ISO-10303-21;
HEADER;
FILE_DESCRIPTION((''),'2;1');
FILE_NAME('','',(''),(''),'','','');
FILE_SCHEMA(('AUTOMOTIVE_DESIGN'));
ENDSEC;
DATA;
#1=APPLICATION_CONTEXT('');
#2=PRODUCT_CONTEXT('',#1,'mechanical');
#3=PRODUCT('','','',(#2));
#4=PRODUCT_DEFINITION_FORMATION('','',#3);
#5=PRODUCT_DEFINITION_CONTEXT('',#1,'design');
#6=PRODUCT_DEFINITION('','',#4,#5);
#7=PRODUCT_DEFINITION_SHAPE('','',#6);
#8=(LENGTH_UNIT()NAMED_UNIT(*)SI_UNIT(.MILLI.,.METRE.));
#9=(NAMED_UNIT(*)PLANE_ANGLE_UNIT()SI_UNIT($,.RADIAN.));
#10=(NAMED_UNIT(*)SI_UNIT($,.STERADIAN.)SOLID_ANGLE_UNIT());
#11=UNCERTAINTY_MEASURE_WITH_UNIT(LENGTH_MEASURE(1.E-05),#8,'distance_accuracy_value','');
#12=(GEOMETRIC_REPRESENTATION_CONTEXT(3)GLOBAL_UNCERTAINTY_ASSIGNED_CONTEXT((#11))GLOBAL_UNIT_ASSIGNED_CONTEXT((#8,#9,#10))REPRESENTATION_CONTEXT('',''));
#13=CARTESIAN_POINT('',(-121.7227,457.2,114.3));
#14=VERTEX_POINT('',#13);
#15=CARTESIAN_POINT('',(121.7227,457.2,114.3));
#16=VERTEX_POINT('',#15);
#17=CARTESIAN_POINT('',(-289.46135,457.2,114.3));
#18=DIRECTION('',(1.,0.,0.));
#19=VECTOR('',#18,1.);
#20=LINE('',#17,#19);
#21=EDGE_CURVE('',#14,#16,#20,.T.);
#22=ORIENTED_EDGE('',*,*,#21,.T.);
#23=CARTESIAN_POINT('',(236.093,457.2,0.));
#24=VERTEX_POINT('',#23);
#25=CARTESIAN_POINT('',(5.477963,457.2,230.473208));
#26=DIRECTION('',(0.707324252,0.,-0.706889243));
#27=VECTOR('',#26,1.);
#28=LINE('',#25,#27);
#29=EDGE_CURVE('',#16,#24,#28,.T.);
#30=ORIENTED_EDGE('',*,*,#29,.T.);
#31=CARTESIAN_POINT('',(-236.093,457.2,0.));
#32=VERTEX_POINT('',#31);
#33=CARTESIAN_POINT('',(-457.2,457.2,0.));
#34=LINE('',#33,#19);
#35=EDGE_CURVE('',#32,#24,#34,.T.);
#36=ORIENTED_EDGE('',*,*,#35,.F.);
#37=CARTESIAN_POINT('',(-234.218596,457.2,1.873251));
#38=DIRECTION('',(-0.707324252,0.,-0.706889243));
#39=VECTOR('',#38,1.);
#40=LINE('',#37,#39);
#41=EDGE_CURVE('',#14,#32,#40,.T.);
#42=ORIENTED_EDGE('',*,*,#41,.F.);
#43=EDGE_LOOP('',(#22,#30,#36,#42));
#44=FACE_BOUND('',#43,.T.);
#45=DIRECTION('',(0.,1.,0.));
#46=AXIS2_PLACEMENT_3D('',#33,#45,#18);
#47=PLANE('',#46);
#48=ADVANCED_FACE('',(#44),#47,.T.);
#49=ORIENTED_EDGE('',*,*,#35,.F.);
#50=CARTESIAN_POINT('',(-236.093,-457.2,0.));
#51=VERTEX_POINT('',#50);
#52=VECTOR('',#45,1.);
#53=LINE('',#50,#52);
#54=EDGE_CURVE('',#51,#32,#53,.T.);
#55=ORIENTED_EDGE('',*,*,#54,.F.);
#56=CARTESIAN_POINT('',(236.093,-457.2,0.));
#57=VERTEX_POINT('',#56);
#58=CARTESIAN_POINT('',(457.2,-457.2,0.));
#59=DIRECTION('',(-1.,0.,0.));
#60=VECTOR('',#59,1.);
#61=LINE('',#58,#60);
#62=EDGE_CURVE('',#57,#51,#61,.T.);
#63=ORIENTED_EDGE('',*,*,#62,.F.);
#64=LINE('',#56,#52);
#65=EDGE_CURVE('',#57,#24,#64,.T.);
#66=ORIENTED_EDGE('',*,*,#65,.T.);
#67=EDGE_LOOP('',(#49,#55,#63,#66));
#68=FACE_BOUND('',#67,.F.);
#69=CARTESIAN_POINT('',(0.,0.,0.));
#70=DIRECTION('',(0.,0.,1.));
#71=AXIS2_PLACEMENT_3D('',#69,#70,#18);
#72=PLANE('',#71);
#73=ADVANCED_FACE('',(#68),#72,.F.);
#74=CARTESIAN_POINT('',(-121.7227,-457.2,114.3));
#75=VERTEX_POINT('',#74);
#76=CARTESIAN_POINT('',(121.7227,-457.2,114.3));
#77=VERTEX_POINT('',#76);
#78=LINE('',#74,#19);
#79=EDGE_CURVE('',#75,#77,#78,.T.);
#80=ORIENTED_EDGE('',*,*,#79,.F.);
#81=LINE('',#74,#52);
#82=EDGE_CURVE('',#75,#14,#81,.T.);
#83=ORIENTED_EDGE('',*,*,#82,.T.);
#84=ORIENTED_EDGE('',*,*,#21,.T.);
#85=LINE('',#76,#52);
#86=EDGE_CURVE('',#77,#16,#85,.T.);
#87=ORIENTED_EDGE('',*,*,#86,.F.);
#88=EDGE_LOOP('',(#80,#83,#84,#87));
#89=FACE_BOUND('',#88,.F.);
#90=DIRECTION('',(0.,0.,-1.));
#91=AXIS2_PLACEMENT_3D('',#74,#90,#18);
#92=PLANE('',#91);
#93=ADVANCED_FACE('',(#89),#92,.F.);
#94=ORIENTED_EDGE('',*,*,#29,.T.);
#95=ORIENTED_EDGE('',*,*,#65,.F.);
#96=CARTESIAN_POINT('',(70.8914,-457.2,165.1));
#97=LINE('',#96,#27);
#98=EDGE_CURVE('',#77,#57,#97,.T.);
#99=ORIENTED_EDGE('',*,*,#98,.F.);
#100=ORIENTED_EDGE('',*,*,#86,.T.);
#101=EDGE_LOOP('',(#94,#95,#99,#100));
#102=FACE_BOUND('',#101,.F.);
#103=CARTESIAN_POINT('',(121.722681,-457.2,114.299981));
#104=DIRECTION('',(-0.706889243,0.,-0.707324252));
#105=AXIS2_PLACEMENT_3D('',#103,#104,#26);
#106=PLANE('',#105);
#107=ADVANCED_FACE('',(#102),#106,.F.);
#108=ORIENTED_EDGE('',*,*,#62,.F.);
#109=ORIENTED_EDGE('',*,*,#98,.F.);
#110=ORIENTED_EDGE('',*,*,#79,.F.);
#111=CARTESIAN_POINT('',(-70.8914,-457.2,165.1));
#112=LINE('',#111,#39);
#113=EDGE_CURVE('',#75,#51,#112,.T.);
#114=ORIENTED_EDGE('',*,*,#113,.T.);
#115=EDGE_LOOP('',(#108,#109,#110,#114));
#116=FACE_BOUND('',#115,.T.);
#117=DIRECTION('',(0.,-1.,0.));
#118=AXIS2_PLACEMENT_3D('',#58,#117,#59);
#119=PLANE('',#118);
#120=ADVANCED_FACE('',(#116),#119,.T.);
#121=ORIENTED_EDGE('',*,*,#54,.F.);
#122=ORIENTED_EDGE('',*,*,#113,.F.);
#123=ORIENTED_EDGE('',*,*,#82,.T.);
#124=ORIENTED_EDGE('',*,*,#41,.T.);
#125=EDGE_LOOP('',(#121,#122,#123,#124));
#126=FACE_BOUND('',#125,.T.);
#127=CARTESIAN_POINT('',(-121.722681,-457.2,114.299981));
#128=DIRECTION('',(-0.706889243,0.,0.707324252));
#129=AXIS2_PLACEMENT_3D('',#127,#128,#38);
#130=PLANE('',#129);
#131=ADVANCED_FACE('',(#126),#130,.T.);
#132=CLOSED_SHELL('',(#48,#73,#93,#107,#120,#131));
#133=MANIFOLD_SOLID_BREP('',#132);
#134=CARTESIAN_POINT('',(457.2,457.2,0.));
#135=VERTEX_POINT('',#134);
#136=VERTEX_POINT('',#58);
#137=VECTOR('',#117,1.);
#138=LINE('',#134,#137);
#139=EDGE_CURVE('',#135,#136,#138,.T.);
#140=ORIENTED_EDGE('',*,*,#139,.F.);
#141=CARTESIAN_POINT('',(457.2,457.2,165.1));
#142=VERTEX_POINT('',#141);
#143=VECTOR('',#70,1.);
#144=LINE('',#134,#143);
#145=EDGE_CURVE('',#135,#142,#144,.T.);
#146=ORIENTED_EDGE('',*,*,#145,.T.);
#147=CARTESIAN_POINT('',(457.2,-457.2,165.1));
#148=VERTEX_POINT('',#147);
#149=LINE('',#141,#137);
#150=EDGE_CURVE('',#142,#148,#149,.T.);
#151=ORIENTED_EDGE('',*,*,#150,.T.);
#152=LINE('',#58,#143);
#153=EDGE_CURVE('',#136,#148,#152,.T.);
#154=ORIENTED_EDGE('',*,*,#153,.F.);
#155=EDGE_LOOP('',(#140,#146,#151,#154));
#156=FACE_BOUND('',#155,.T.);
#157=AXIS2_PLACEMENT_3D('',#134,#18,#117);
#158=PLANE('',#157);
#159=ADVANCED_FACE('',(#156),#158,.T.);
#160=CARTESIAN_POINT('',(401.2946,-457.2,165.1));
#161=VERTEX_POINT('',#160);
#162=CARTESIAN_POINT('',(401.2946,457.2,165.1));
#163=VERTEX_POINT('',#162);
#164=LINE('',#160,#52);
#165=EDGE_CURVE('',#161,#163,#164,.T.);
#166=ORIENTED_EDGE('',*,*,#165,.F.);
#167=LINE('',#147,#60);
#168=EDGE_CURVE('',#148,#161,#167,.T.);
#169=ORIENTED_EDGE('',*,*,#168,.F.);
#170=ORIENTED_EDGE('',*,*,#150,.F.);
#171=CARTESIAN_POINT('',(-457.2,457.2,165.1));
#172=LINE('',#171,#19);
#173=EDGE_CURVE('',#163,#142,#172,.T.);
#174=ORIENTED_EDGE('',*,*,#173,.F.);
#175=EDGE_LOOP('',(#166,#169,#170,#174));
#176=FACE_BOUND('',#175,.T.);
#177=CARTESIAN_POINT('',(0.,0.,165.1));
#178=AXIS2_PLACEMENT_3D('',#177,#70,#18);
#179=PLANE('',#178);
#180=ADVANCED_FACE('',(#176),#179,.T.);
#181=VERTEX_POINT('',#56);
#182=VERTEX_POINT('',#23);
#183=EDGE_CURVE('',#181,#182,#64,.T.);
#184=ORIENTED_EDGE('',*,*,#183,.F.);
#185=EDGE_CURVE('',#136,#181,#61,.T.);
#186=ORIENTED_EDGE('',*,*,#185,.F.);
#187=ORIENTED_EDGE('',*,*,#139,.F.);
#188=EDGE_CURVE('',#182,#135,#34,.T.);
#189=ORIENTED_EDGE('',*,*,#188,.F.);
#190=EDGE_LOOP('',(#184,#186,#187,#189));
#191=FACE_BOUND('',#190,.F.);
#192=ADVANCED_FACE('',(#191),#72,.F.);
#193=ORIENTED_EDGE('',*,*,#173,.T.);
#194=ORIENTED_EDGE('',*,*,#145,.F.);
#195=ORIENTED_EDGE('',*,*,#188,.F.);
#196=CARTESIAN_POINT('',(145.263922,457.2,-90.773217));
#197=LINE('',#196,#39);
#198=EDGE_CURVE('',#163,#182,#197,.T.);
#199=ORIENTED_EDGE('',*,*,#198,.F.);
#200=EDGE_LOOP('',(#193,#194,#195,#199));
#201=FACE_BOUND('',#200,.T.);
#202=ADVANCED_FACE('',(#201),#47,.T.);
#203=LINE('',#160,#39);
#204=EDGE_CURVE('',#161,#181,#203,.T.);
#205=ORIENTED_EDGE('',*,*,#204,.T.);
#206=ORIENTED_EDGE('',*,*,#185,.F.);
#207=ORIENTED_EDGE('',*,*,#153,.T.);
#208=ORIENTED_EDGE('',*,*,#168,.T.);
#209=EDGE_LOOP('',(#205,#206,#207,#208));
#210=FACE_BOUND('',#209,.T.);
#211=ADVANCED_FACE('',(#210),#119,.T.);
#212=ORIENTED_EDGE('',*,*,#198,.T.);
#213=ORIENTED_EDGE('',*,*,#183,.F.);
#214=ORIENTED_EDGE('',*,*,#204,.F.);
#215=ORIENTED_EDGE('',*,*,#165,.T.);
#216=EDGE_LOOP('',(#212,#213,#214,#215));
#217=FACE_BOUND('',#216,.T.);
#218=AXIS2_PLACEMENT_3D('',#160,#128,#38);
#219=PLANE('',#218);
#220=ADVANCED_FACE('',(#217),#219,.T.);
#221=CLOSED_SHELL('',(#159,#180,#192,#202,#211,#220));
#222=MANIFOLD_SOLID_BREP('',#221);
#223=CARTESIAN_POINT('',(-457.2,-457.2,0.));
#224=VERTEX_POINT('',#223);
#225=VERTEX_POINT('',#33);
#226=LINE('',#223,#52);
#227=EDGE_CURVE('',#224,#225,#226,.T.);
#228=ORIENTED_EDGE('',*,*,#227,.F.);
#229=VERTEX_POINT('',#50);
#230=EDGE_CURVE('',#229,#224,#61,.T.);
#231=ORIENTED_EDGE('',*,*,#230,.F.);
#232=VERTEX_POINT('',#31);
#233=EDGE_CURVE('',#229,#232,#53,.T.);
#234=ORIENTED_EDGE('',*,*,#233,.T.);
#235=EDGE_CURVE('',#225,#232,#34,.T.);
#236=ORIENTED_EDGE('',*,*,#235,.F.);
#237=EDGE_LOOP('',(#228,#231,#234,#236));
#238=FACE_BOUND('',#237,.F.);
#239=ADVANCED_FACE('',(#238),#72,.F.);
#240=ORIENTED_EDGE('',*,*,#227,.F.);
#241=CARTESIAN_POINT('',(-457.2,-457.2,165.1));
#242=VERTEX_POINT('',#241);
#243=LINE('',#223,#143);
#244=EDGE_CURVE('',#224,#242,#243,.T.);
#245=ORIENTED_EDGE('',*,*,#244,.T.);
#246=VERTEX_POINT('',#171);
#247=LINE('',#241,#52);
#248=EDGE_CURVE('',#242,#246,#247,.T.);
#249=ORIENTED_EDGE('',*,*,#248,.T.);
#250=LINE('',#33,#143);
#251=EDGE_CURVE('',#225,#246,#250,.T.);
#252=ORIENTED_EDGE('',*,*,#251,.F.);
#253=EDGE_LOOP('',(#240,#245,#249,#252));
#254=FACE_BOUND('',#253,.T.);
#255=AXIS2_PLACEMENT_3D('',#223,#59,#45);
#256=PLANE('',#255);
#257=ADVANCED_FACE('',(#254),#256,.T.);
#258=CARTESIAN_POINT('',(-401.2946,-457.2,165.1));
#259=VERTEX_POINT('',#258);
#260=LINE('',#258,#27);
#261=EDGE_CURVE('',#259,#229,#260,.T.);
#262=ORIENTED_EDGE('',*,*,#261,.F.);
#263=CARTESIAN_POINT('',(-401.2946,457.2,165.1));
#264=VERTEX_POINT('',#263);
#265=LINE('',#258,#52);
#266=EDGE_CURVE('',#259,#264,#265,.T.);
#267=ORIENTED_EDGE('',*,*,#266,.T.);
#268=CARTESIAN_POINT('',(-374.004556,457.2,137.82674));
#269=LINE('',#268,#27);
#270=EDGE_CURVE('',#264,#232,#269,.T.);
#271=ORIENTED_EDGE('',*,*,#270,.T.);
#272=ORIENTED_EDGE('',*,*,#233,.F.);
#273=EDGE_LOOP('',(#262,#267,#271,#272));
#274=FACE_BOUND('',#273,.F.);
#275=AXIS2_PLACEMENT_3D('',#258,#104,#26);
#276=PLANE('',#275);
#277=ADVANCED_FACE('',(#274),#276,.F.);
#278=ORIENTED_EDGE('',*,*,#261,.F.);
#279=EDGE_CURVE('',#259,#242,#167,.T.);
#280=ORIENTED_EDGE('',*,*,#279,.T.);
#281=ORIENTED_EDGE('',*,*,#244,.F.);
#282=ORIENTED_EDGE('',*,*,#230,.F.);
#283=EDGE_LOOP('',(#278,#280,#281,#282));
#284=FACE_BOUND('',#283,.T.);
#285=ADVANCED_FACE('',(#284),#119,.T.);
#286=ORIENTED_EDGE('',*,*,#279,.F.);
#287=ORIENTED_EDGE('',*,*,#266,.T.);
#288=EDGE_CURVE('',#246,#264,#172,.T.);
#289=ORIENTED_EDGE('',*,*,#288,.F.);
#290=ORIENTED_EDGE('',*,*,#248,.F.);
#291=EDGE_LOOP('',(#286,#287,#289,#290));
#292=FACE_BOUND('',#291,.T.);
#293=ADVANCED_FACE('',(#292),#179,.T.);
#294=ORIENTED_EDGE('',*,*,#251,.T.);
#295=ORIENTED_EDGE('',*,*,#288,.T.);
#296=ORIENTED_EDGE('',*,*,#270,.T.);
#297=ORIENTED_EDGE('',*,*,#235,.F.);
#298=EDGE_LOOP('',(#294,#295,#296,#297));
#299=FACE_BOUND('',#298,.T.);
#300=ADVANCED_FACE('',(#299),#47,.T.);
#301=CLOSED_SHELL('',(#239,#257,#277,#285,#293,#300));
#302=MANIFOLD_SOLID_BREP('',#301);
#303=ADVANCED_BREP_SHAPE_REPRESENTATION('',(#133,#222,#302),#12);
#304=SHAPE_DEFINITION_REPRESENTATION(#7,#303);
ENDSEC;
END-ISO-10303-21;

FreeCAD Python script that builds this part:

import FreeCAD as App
import Part
import Sketcher
Q = App.Units.Quantity

doc = App.newDocument("Part")
params = doc.addObject("Spreadsheet::Sheet", "Params")
for row, (alias, value) in enumerate([
    ("sketch1_width", "36 in"),
    ("pad1_length", "6.5 in"),
    ("sketch2_width", "31.598 in"),
], start=1):
    params.set(f"A{row}", alias)
    params.set(f"B{row}", "=" + value)
    params.setAlias(f"B{row}", alias)

body = doc.addObject("PartDesign::Body", "Body")
body.AllowCompound = True

# Sketch on XY plane
sketch1 = body.newObject("Sketcher::SketchObject", "Sketch")
sketch1.AttachmentSupport = (doc.getObject("XY_Plane"), [""])
sketch1.MapMode = "FlatFace"
sketch1.addGeometry([
    Part.LineSegment(App.Vector(457, 457, 0), App.Vector(-457, 457, 0)),
    Part.LineSegment(App.Vector(-457, 457, 0), App.Vector(-457, -457, 0)),
    Part.LineSegment(App.Vector(-457, -457, 0), App.Vector(457, -457, 0)),
    Part.LineSegment(App.Vector(457, -457, 0), App.Vector(457, 457, 0)),
], False)
sketch1.addConstraint([
    Sketcher.Constraint("Coincident", 0, 2, 1, 1),
    Sketcher.Constraint("Coincident", 1, 2, 2, 1),
    Sketcher.Constraint("Coincident", 2, 2, 3, 1),
    Sketcher.Constraint("Coincident", 3, 2, 0, 1),
    Sketcher.Constraint("Horizontal", 0),
    Sketcher.Constraint("Vertical", 1),
    Sketcher.Constraint("Horizontal", 2),
    Sketcher.Constraint("Vertical", 3),
    Sketcher.Constraint("Symmetric", 0, 2, 2, 2, -1, 1),
    Sketcher.Constraint("Equal", 2, 1),
    Sketcher.Constraint("DistanceX", 0, 2, 0, 1, Q("36 in")),
])
sketch1.setExpression("Constraints[10]", "Params.sketch1_width")
pad1 = body.newObject("PartDesign::Pad", "Pad")
pad1.Profile = sketch1
pad1.setExpression("Length", "Params.pad1_length")

# Sketch on XZ plane
sketch2 = body.newObject("Sketcher::SketchObject", "Sketch001")
sketch2.AttachmentSupport = (doc.getObject("XZ_Plane"), [""])
sketch2.MapMode = "FlatFace"
sketch2.AttachmentOffset = App.Placement(App.Vector(0, 0, 18 * 25.4), App.Rotation())
sketch2.addGeometry([
    Part.LineSegment(App.Vector(-401, 165, 0), App.Vector(-236, 0, 0)),  # 0
    Part.LineSegment(App.Vector(-236, 0, 0), App.Vector(-122, 114, 0)),  # 1
    Part.LineSegment(App.Vector(-122, 114, 0), App.Vector(122, 114, 0)),  # 2
    Part.LineSegment(App.Vector(122, 114, 0), App.Vector(236, 0, 0)),  # 3
    Part.LineSegment(App.Vector(236, 0, 0), App.Vector(401, 165, 0)),  # 4
    Part.LineSegment(App.Vector(401, 165, 0), App.Vector(-401, 165, 0)),  # 5
], False)
sketch2.addConstraint([
    Sketcher.Constraint("Coincident", 0, 2, 1, 1),
    Sketcher.Constraint("Coincident", 1, 2, 2, 1),
    Sketcher.Constraint("Coincident", 2, 2, 3, 1),
    Sketcher.Constraint("Coincident", 3, 2, 4, 1),
    Sketcher.Constraint("Coincident", 4, 2, 5, 1),
    Sketcher.Constraint("Coincident", 5, 2, 0, 1),
    Sketcher.Constraint("Horizontal", 2),
    Sketcher.Constraint("Horizontal", 5),
    Sketcher.Constraint("Symmetric", 0, 2, 3, 2, -1, 1),
    Sketcher.Constraint("PointOnObject", 0, 2, -1),
    Sketcher.Constraint("Parallel", 0, 3),
    Sketcher.Constraint("Parallel", 1, 4),
    Sketcher.Constraint("Equal", 1, 3),
    Sketcher.Constraint("DistanceY", 2, 2, 4, 2, Q("2 in")),
    Sketcher.Constraint("DistanceY", -1, 1, 1, 2, Q("4.5 in")),
    Sketcher.Constraint("DistanceX", 5, 2, 5, 1, Q("31.598 in")),
    Sketcher.Constraint("DistanceX", 0, 2, 3, 2, Q("18.59 in")),
])
sketch2.setExpression("Constraints[15]", "Params.sketch2_width")
pocket1 = body.newObject("PartDesign::Pocket", "Pocket")
pocket1.Profile = sketch2
pocket1.Type = "UpToFirst"

doc.recompute()
